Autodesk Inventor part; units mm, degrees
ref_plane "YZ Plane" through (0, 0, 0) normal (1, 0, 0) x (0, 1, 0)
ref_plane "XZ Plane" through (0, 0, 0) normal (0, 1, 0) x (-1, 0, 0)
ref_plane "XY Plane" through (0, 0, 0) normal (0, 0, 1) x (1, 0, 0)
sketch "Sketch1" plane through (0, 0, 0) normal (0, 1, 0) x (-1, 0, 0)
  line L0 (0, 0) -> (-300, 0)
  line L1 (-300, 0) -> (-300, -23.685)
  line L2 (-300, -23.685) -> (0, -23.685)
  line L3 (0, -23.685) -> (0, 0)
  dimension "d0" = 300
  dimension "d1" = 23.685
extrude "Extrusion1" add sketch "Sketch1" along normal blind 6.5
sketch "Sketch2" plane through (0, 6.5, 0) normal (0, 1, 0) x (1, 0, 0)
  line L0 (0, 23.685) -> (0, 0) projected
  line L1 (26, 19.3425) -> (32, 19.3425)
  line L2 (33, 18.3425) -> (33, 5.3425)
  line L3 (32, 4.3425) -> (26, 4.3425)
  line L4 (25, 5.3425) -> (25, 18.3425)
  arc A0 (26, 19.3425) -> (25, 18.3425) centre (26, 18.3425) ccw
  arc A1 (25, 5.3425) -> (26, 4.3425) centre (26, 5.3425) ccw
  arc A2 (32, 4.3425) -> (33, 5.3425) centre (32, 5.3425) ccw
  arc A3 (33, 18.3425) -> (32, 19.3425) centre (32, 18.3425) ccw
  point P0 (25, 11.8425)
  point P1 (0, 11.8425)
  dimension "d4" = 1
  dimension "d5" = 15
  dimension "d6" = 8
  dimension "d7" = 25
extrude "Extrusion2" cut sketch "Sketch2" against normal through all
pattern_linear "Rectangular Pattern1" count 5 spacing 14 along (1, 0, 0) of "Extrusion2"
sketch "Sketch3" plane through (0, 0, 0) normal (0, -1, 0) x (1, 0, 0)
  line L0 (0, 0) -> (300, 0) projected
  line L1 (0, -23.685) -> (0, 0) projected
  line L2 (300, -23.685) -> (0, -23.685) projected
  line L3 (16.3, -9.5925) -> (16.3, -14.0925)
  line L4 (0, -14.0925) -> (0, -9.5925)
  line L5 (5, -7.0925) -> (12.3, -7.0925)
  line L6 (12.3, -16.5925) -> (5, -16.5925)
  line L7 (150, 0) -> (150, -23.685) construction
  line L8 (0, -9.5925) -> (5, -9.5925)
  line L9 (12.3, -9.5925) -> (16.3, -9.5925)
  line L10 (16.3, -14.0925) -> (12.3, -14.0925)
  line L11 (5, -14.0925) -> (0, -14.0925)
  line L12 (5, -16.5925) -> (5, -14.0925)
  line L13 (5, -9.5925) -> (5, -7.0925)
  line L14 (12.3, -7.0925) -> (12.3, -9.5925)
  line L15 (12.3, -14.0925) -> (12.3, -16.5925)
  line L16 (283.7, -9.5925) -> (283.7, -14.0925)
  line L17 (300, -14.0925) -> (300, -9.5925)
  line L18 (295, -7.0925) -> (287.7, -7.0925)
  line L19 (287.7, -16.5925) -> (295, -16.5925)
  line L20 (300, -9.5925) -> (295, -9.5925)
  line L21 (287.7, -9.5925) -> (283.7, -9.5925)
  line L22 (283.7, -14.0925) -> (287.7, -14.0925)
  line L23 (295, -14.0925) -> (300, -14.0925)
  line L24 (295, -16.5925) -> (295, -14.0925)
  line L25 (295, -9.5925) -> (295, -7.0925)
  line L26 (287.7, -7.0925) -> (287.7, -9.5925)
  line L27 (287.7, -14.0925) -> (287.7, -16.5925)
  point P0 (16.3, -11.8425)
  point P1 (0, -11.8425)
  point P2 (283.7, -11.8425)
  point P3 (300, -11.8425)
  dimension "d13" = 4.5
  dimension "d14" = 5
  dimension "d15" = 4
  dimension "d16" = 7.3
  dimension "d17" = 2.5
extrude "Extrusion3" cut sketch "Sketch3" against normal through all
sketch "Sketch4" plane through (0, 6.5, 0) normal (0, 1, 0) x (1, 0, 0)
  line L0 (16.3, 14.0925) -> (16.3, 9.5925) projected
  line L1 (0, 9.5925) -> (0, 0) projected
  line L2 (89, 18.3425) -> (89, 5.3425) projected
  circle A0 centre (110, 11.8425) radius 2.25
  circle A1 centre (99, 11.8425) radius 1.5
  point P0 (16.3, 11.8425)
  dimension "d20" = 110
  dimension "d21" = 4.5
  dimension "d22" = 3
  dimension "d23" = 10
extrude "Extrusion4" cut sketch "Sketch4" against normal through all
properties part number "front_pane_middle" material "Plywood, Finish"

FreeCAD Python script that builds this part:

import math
import FreeCAD as App
import Part
import Sketcher
from FreeCAD import Vector
Q = App.Units.Quantity


def add_polygon(sketch, points):
    """Adds a closed chain of lines whose ends are joined by coincident constraints."""
    first, n = sketch.GeometryCount, len(points)
    for a, b in zip(points, points[1:] + points[:1]):
        sketch.addGeometry(Part.LineSegment(App.Vector(*a, 0), App.Vector(*b, 0)), False)
    for i in range(n):
        sketch.addConstraint(Sketcher.Constraint("Coincident", first + i, 2, first + (i + 1) % n, 1))

doc = App.newDocument("Part")
body = doc.addObject("PartDesign::Body", "Body")

# Sketch on XZ plane
sketch1 = body.newObject("Sketcher::SketchObject", "Sketch")
sketch1.AttachmentSupport = (doc.getObject("XZ_Plane"), [""])
sketch1.MapMode = "FlatFace"
add_polygon(sketch1, [(0, -24), (0, 0), (300, 0), (300, -24)])  # lines 0-3
sketch1.addConstraint(Sketcher.Constraint("Vertical", 0))
sketch1.addConstraint(Sketcher.Constraint("Horizontal", 1))
sketch1.addConstraint(Sketcher.Constraint("Vertical", 2))
sketch1.addConstraint(Sketcher.Constraint("Horizontal", 3))
sketch1.addConstraint(Sketcher.Constraint("Coincident", 0, 2, -1, 1))
sketch1.addConstraint(Sketcher.Constraint("DistanceX", 1, 1, 1, 2, Q("300 mm")))
sketch1.addConstraint(Sketcher.Constraint("DistanceY", 0, 1, 0, 2, Q("23.685 mm")))
pad1 = body.newObject("PartDesign::Pad", "Pad")
pad1.Profile = sketch1
pad1.Length = 6.5
pad1.Reversed = True

# Sketch on XZ plane
sketch2 = body.newObject("Sketcher::SketchObject", "Sketch001")
sketch2.AttachmentSupport = (doc.getObject("XZ_Plane"), [""])
sketch2.MapMode = "FlatFace"
sketch2.AttachmentOffset = App.Placement(Vector(0, 0, -6.5), App.Rotation())
sketch2.addGeometry(Part.LineSegment(Vector(32, -19.3, 0), Vector(26, -19.3, 0)), False)
sketch2.addGeometry(Part.ArcOfCircle(Part.Circle(Vector(26, -18.3, 0), Vector(0, 0, 1), 1), math.radians(180), math.radians(270)), False)
sketch2.addGeometry(Part.LineSegment(Vector(25, -18.3, 0), Vector(25, -5.3, 0)), False)
sketch2.addGeometry(Part.ArcOfCircle(Part.Circle(Vector(26, -5.3, 0), Vector(0, 0, 1), 1), math.radians(90), math.radians(180)), False)
sketch2.addGeometry(Part.LineSegment(Vector(26, -4.3, 0), Vector(32, -4.3, 0)), False)
sketch2.addGeometry(Part.ArcOfCircle(Part.Circle(Vector(32, -5.3, 0), Vector(0, 0, 1), 1), math.radians(0), math.radians(90)), False)
sketch2.addGeometry(Part.LineSegment(Vector(33, -5.3, 0), Vector(33, -18.3, 0)), False)
sketch2.addGeometry(Part.ArcOfCircle(Part.Circle(Vector(32, -18.3, 0), Vector(0, 0, 1), 1), math.radians(-90), math.radians(0)), False)
sketch2.addConstraint(Sketcher.Constraint("Tangent", 0, 2, 1, 2))
sketch2.addConstraint(Sketcher.Constraint("Tangent", 1, 1, 2, 1))
sketch2.addConstraint(Sketcher.Constraint("Tangent", 2, 2, 3, 2))
sketch2.addConstraint(Sketcher.Constraint("Tangent", 3, 1, 4, 1))
sketch2.addConstraint(Sketcher.Constraint("Tangent", 4, 2, 5, 2))
sketch2.addConstraint(Sketcher.Constraint("Tangent", 5, 1, 6, 1))
sketch2.addConstraint(Sketcher.Constraint("Tangent", 6, 2, 7, 2))
sketch2.addConstraint(Sketcher.Constraint("Tangent", 7, 1, 0, 1))
sketch2.addConstraint(Sketcher.Constraint("Horizontal", 0))
sketch2.addConstraint(Sketcher.Constraint("Vertical", 2))
sketch2.addConstraint(Sketcher.Constraint("Horizontal", 4))
sketch2.addConstraint(Sketcher.Constraint("Vertical", 6))
sketch2.addConstraint(Sketcher.Constraint("Equal", 1, 3))
sketch2.addConstraint(Sketcher.Constraint("Equal", 3, 5))
sketch2.addConstraint(Sketcher.Constraint("Equal", 5, 7))
sketch2.addConstraint(Sketcher.Constraint("Radius", 1, Q("1 mm")))
sketch2.addConstraint(Sketcher.Constraint("DistanceX", -1, 1, 1, 1, Q("25 mm")))
sketch2.addConstraint(Sketcher.Constraint("DistanceX", 2, 2, 5, 1, Q("8 mm")))
sketch2.addConstraint(Sketcher.Constraint("DistanceY", 2, 1, 2, 2, Q("13 mm")))
sketch2.addConstraint(Sketcher.Constraint("DistanceY", 1, 3, -1, 1, Q("18.3425 mm")))
pocket1 = body.newObject("PartDesign::Pocket", "Pocket")
pocket1.Profile = sketch2
pocket1.Type = "ThroughAll"
pocket1.Reversed = True
doc.recompute()

linearpattern = body.newObject("PartDesign::LinearPattern", "LinearPattern")
linearpattern.Originals = [pocket1]
linearpattern.Direction = (doc.getObject("X_Axis"), [""])
linearpattern.Mode = "offset"
linearpattern.Offset = 14
linearpattern.Occurrences = 5
body.Tip = linearpattern

# Sketch on XZ plane
sketch3 = body.newObject("Sketcher::SketchObject", "Sketch002")
sketch3.AttachmentSupport = (doc.getObject("XZ_Plane"), [""])
sketch3.MapMode = "FlatFace"
add_polygon(sketch3, [(0, -9.6), (0, -14.1), (5, -14.1), (5, -16.6), (12.3, -16.6), (12.3, -14.1), (16.3, -14.1), (16.3, -9.6), (12.3, -9.6), (12.3, -7.1), (5, -7.1), (5, -9.6)])  # lines 0-11
add_polygon(sketch3, [(287.7, -9.6), (283.7, -9.6), (283.7, -14.1), (287.7, -14.1), (287.7, -16.6), (295, -16.6), (295, -14.1), (300, -14.1), (300, -9.6), (295, -9.6), (295, -7.1), (287.7, -7.1)])  # lines 12-23
sketch3.addConstraint(Sketcher.Constraint("Vertical", 0))
sketch3.addConstraint(Sketcher.Constraint("Horizontal", 1))
sketch3.addConstraint(Sketcher.Constraint("Vertical", 2))
sketch3.addConstraint(Sketcher.Constraint("Horizontal", 3))
sketch3.addConstraint(Sketcher.Constraint("Vertical", 4))
sketch3.addConstraint(Sketcher.Constraint("Horizontal", 5))
sketch3.addConstraint(Sketcher.Constraint("Vertical", 6))
sketch3.addConstraint(Sketcher.Constraint("Horizontal", 7))
sketch3.addConstraint(Sketcher.Constraint("Vertical", 8))
sketch3.addConstraint(Sketcher.Constraint("Horizontal", 9))
sketch3.addConstraint(Sketcher.Constraint("Vertical", 10))
sketch3.addConstraint(Sketcher.Constraint("Horizontal", 11))
sketch3.addConstraint(Sketcher.Constraint("Horizontal", 12))
sketch3.addConstraint(Sketcher.Constraint("Vertical", 13))
sketch3.addConstraint(Sketcher.Constraint("Horizontal", 14))
sketch3.addConstraint(Sketcher.Constraint("Vertical", 15))
sketch3.addConstraint(Sketcher.Constraint("Horizontal", 16))
sketch3.addConstraint(Sketcher.Constraint("Vertical", 17))
sketch3.addConstraint(Sketcher.Constraint("Horizontal", 18))
sketch3.addConstraint(Sketcher.Constraint("Vertical", 19))
sketch3.addConstraint(Sketcher.Constraint("Horizontal", 20))
sketch3.addConstraint(Sketcher.Constraint("Vertical", 21))
sketch3.addConstraint(Sketcher.Constraint("Horizontal", 22))
sketch3.addConstraint(Sketcher.Constraint("Vertical", 23))
sketch3.addConstraint(Sketcher.Constraint("PointOnObject", 0, 2, -2))
sketch3.addConstraint(Sketcher.Constraint("Horizontal", 1, 2, 4, 2))
sketch3.addConstraint(Sketcher.Constraint("Horizontal", 7, 2, 10, 2))
sketch3.addConstraint(Sketcher.Constraint("Horizontal", 11, 2, 12, 2))
sketch3.addConstraint(Sketcher.Constraint("Horizontal", 5, 2, 13, 2))
sketch3.addConstraint(Sketcher.Constraint("Horizontal", 3, 2, 15, 2))
sketch3.addConstraint(Sketcher.Constraint("Horizontal", 14, 2, 17, 2))
sketch3.addConstraint(Sketcher.Constraint("Horizontal", 12, 2, 19, 2))
sketch3.addConstraint(Sketcher.Constraint("Horizontal", 9, 2, 21, 2))
sketch3.addConstraint(Sketcher.Constraint("Vertical", 4, 2, 7, 2))
sketch3.addConstraint(Sketcher.Constraint("Vertical", 2, 2, 9, 2))
sketch3.addConstraint(Sketcher.Constraint("Vertical", 17, 2, 20, 2))
sketch3.addConstraint(Sketcher.Constraint("Vertical", 15, 2, 22, 2))
sketch3.addConstraint(Sketcher.Constraint("Equal", 7, 12))
sketch3.addConstraint(Sketcher.Constraint("Equal", 9, 16))
sketch3.addConstraint(Sketcher.Constraint("Equal", 11, 18))
sketch3.addConstraint(Sketcher.Constraint("Equal", 4, 8))
sketch3.addConstraint(Sketcher.Constraint("DistanceX", 1, 1, 1, 2, Q("5 mm")))
sketch3.addConstraint(Sketcher.Constraint("DistanceX", 5, 1, 5, 2, Q("4 mm")))
sketch3.addConstraint(Sketcher.Constraint("DistanceX", 3, 1, 3, 2, Q("7.3 mm")))
sketch3.addConstraint(Sketcher.Constraint("DistanceY", 0, 2, 0, 1, Q("4.5 mm")))
sketch3.addConstraint(Sketcher.Constraint("DistanceY", 2, 2, 2, 1, Q("2.5 mm")))
sketch3.addConstraint(Sketcher.Constraint("DistanceX", -1, 1, 16, 2, Q("295 mm")))
sketch3.addConstraint(Sketcher.Constraint("DistanceY", 0, 2, -1, 1, Q("14.0925 mm")))
pocket2 = body.newObject("PartDesign::Pocket", "Pocket001")
pocket2.Profile = sketch3
pocket2.Type = "ThroughAll"

# Sketch on XZ plane
sketch4 = body.newObject("Sketcher::SketchObject", "Sketch003")
sketch4.AttachmentSupport = (doc.getObject("XZ_Plane"), [""])
sketch4.MapMode = "FlatFace"
sketch4.AttachmentOffset = App.Placement(Vector(0, 0, -6.5), App.Rotation())
sketch4.addGeometry(Part.Circle(Vector(110, -11.8, 0), Vector(0, 0, 1), 2.2), False)
sketch4.addGeometry(Part.Circle(Vector(99, -11.8, 0), Vector(0, 0, 1), 1.5), False)
sketch4.addConstraint(Sketcher.Constraint("Horizontal", 0, 3, 1, 3))
sketch4.addConstraint(Sketcher.Constraint("Diameter", 1, Q("3 mm")))
sketch4.addConstraint(Sketcher.Constraint("Diameter", 0, Q("4.5 mm")))
sketch4.addConstraint(Sketcher.Constraint("DistanceX", -1, 1, 0, 3, Q("110 mm")))
sketch4.addConstraint(Sketcher.Constraint("DistanceX", -1, 1, 1, 3, Q("99 mm")))
sketch4.addConstraint(Sketcher.Constraint("DistanceY", 0, 3, -1, 1, Q("11.8425 mm")))
pocket3 = body.newObject("PartDesign::Pocket", "Pocket002")
pocket3.Profile = sketch4
pocket3.Type = "ThroughAll"
pocket3.Reversed = True

doc.recompute()
